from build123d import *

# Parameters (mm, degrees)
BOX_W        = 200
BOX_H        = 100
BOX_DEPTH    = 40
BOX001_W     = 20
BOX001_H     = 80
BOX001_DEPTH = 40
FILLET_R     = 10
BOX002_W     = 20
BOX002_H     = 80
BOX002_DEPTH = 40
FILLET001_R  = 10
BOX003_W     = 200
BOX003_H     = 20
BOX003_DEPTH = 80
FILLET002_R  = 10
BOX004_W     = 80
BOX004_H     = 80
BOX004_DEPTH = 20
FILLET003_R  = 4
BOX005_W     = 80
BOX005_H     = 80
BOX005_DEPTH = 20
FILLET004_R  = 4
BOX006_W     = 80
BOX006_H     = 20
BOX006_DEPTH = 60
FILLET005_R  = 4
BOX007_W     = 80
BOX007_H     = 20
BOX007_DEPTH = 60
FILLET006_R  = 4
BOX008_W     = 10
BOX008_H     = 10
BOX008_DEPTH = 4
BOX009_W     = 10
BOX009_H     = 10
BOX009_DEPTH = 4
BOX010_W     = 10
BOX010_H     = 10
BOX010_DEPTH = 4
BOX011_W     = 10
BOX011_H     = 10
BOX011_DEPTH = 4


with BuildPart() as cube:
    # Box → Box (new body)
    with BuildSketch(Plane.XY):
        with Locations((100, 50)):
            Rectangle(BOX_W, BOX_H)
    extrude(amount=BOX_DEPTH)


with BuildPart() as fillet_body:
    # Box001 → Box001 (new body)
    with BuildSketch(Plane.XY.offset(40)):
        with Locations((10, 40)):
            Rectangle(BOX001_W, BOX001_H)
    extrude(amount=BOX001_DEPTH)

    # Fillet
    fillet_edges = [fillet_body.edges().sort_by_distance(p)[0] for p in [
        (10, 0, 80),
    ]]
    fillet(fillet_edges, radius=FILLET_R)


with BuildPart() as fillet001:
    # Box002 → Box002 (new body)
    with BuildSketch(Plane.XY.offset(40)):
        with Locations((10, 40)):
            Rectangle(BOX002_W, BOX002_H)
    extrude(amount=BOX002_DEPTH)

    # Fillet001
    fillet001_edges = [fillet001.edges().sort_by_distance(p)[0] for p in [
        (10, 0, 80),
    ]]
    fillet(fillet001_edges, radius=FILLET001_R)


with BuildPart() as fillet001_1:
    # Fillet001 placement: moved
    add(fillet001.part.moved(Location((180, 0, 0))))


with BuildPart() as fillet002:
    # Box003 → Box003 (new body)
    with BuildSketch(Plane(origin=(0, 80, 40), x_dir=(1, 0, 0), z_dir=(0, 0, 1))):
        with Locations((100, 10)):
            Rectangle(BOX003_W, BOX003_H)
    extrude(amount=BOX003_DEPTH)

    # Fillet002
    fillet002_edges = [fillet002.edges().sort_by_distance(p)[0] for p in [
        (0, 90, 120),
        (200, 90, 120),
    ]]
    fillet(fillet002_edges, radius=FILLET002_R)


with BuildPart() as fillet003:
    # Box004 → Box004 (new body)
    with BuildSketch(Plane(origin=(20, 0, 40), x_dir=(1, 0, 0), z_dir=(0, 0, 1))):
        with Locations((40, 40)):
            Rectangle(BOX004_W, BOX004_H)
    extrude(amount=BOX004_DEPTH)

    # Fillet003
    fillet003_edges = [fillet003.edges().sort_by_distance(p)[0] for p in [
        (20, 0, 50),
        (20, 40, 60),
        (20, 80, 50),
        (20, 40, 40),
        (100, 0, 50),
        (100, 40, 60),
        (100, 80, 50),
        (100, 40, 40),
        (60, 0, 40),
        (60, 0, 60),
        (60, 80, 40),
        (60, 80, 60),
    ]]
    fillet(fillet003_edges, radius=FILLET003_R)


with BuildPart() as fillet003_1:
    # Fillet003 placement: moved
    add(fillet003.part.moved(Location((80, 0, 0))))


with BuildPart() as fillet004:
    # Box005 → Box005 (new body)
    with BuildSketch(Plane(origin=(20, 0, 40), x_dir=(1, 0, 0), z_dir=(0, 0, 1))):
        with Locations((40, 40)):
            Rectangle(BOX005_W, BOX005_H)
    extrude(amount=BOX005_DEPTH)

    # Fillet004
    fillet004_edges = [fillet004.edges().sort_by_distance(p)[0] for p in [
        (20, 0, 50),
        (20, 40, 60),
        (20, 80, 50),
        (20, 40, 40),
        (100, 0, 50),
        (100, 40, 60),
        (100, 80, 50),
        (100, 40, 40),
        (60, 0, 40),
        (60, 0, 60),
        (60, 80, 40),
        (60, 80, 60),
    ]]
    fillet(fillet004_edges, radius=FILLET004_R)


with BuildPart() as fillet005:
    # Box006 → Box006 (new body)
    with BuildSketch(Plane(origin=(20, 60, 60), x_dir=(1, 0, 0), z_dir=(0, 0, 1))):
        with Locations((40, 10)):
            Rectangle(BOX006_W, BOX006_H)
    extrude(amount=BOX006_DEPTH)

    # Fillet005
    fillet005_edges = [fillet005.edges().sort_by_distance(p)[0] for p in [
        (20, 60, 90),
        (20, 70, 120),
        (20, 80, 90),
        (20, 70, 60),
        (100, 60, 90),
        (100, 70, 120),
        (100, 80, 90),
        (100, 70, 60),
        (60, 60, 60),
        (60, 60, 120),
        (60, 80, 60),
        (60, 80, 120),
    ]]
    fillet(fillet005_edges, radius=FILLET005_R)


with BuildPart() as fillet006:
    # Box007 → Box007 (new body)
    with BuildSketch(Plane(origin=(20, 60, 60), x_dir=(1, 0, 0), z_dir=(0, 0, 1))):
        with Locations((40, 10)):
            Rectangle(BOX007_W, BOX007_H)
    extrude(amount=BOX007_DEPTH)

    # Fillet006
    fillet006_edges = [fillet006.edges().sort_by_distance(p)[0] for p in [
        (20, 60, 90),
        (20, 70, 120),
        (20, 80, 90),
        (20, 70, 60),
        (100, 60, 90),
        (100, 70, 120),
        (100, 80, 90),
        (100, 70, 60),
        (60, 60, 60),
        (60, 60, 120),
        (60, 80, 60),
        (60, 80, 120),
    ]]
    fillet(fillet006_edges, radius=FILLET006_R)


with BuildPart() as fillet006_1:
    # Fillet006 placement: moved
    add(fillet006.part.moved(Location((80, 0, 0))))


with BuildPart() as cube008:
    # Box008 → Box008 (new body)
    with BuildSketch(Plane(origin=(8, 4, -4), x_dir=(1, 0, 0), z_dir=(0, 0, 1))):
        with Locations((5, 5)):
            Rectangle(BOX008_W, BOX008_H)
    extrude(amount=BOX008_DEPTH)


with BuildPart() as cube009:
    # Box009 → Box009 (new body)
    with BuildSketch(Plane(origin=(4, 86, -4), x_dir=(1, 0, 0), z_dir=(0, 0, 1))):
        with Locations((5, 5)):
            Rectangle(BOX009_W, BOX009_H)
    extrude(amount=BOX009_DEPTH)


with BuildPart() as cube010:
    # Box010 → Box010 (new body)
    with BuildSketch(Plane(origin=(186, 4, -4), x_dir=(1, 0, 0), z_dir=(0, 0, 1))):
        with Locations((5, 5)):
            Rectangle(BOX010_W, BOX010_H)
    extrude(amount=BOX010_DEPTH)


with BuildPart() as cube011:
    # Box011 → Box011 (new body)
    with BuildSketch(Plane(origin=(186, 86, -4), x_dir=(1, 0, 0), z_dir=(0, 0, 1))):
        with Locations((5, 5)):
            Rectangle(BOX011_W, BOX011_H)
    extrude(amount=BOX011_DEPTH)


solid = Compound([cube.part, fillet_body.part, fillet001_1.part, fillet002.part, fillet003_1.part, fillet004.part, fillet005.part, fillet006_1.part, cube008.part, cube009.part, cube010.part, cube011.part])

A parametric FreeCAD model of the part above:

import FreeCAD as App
import Part
import Sketcher


def edges_at(feature, points):
    """Names of the edges that pass closest to the given points."""
    edges = feature.Shape.Edges
    near = lambda p: min(range(len(edges)), key=lambda i: edges[i].distToShape(Part.Vertex(*p))[0])
    return sorted({f"Edge{near(p) + 1}" for p in points})


def add_polygon(sketch, points):
    """Adds a closed chain of lines whose ends are joined by coincident constraints."""
    first, n = sketch.GeometryCount, len(points)
    for a, b in zip(points, points[1:] + points[:1]):
        sketch.addGeometry(Part.LineSegment(App.Vector(*a, 0), App.Vector(*b, 0)), False)
    for i in range(n):
        sketch.addConstraint(Sketcher.Constraint("Coincident", first + i, 2, first + (i + 1) % n, 1))

doc = App.newDocument("Part")
body = doc.addObject("PartDesign::Body", "Body")

# Sketch on XY plane
sketch1 = body.newObject("Sketcher::SketchObject", "Sketch")
sketch1.AttachmentSupport = (doc.getObject("XY_Plane"), [""])
sketch1.MapMode = "FlatFace"
add_polygon(sketch1, [(0, 100), (0, 0), (200, 0), (200, 100)])  # lines 0-3
sketch1.addConstraint([
    Sketcher.Constraint("Vertical", 0),
    Sketcher.Constraint("Horizontal", 1),
    Sketcher.Constraint("Vertical", 2),
    Sketcher.Constraint("Horizontal", 3),
    Sketcher.Constraint("Coincident", 0, 2, -1, 1),
    Sketcher.Constraint("DistanceX", 1, 1, 1, 2, 200.0),
    Sketcher.Constraint("DistanceY", 0, 2, 0, 1, 100.0),
])
pad1 = body.newObject("PartDesign::Pad", "Pad")
pad1.Profile = sketch1
pad1.Length = 40
body2 = doc.addObject("PartDesign::Body", "Body001")

# Sketch on XY plane
sketch2 = body2.newObject("Sketcher::SketchObject", "Sketch001")
sketch2.AttachmentSupport = (doc.getObject("XY_Plane001"), [""])
sketch2.MapMode = "FlatFace"
sketch2.AttachmentOffset = App.Placement(App.Vector(0, 0, 40), App.Rotation())
add_polygon(sketch2, [(0, 80), (0, 0), (20, 0), (20, 80)])  # lines 0-3
sketch2.addConstraint([
    Sketcher.Constraint("Vertical", 0),
    Sketcher.Constraint("Horizontal", 1),
    Sketcher.Constraint("Vertical", 2),
    Sketcher.Constraint("Horizontal", 3),
    Sketcher.Constraint("Coincident", 0, 2, -1, 1),
    Sketcher.Constraint("DistanceX", 1, 1, 1, 2, 20.0),
    Sketcher.Constraint("DistanceY", 0, 2, 0, 1, 80.0),
])
pad2 = body2.newObject("PartDesign::Pad", "Pad001")
pad2.Profile = sketch2
pad2.Length = 40
doc.recompute()

fillet = body2.newObject("PartDesign::Fillet", "Fillet")
fillet.Base = (pad2, edges_at(pad2, [(10, 0, 80)]))
fillet.Radius = 10
body3 = doc.addObject("PartDesign::Body", "Body002")

# Sketch on XY plane
sketch3 = body3.newObject("Sketcher::SketchObject", "Sketch002")
sketch3.AttachmentSupport = (doc.getObject("XY_Plane002"), [""])
sketch3.MapMode = "FlatFace"
sketch3.AttachmentOffset = App.Placement(App.Vector(0, 0, 40), App.Rotation())
add_polygon(sketch3, [(0, 80), (0, 0), (20, 0), (20, 80)])  # lines 0-3
sketch3.addConstraint([
    Sketcher.Constraint("Vertical", 0),
    Sketcher.Constraint("Horizontal", 1),
    Sketcher.Constraint("Vertical", 2),
    Sketcher.Constraint("Horizontal", 3),
    Sketcher.Constraint("Coincident", 0, 2, -1, 1),
    Sketcher.Constraint("DistanceX", 1, 1, 1, 2, 20.0),
    Sketcher.Constraint("DistanceY", 0, 2, 0, 1, 80.0),
])
pad3 = body3.newObject("PartDesign::Pad", "Pad002")
pad3.Profile = sketch3
pad3.Length = 40
doc.recompute()

fillet2 = body3.newObject("PartDesign::Fillet", "Fillet001")
fillet2.Base = (pad3, edges_at(pad3, [(10, 0, 80)]))
fillet2.Radius = 10
body4 = doc.addObject("PartDesign::Body", "Body003")
doc.recompute()

body3.Placement = App.Placement(App.Vector(180, 0, 0), App.Rotation(App.Vector(0, 0, 1), 0))
boolean = body4.newObject("PartDesign::Boolean", "Boolean")
boolean.Type = "Fuse"
boolean.addObjects([body3])
body5 = doc.addObject("PartDesign::Body", "Body004")

# Sketch on XY plane
sketch4 = body5.newObject("Sketcher::SketchObject", "Sketch003")
sketch4.AttachmentSupport = (doc.getObject("XY_Plane004"), [""])
sketch4.MapMode = "FlatFace"
sketch4.AttachmentOffset = App.Placement(App.Vector(0, 0, 40), App.Rotation())
add_polygon(sketch4, [(0, 100), (0, 80), (200, 80), (200, 100)])  # lines 0-3
sketch4.addConstraint([
    Sketcher.Constraint("Vertical", 0),
    Sketcher.Constraint("Horizontal", 1),
    Sketcher.Constraint("Vertical", 2),
    Sketcher.Constraint("Horizontal", 3),
    Sketcher.Constraint("PointOnObject", 0, 2, -2),
    Sketcher.Constraint("DistanceX", 1, 1, 1, 2, 200.0),
    Sketcher.Constraint("DistanceY", 0, 2, 0, 1, 20.0),
    Sketcher.Constraint("DistanceY", -1, 1, 0, 2, 80.0),
])
pad4 = body5.newObject("PartDesign::Pad", "Pad003")
pad4.Profile = sketch4
pad4.Length = 80
doc.recompute()

fillet3 = body5.newObject("PartDesign::Fillet", "Fillet002")
fillet3.Base = (pad4, edges_at(pad4, [(0, 90, 120), (200, 90, 120)]))
fillet3.Radius = 10
body6 = doc.addObject("PartDesign::Body", "Body005")

# Sketch on XY plane
sketch5 = body6.newObject("Sketcher::SketchObject", "Sketch004")
sketch5.AttachmentSupport = (doc.getObject("XY_Plane005"), [""])
sketch5.MapMode = "FlatFace"
sketch5.AttachmentOffset = App.Placement(App.Vector(0, 0, 40), App.Rotation())
add_polygon(sketch5, [(20, 80), (20, 0), (100, 0), (100, 80)])  # lines 0-3
sketch5.addConstraint([
    Sketcher.Constraint("Vertical", 0),
    Sketcher.Constraint("Horizontal", 1),
    Sketcher.Constraint("Vertical", 2),
    Sketcher.Constraint("Horizontal", 3),
    Sketcher.Constraint("PointOnObject", 0, 2, -1),
    Sketcher.Constraint("Equal", 3, 0),
    Sketcher.Constraint("DistanceX", 1, 1, 1, 2, 80.0),
    Sketcher.Constraint("DistanceX", -1, 1, 0, 2, 20.0),
])
pad5 = body6.newObject("PartDesign::Pad", "Pad004")
pad5.Profile = sketch5
pad5.Length = 20
doc.recompute()

fillet4 = body6.newObject("PartDesign::Fillet", "Fillet003")
fillet4.Base = (pad5, ["Edge1"])
fillet4.UseAllEdges = True
fillet4.Radius = 4
body7 = doc.addObject("PartDesign::Body", "Body006")
doc.recompute()

body6.Placement = App.Placement(App.Vector(80, 0, 0), App.Rotation(App.Vector(0, 0, 1), 0))
boolean2 = body7.newObject("PartDesign::Boolean", "Boolean001")
boolean2.Type = "Fuse"
boolean2.addObjects([body6])
body8 = doc.addObject("PartDesign::Body", "Body007")

# Sketch on XY plane
sketch6 = body8.newObject("Sketcher::SketchObject", "Sketch005")
sketch6.AttachmentSupport = (doc.getObject("XY_Plane007"), [""])
sketch6.MapMode = "FlatFace"
sketch6.AttachmentOffset = App.Placement(App.Vector(0, 0, 40), App.Rotation())
add_polygon(sketch6, [(20, 80), (20, 0), (100, 0), (100, 80)])  # lines 0-3
sketch6.addConstraint([
    Sketcher.Constraint("Vertical", 0),
    Sketcher.Constraint("Horizontal", 1),
    Sketcher.Constraint("Vertical", 2),
    Sketcher.Constraint("Horizontal", 3),
    Sketcher.Constraint("PointOnObject", 0, 2, -1),
    Sketcher.Constraint("Equal", 3, 0),
    Sketcher.Constraint("DistanceX", 1, 1, 1, 2, 80.0),
    Sketcher.Constraint("DistanceX", -1, 1, 0, 2, 20.0),
])
pad6 = body8.newObject("PartDesign::Pad", "Pad005")
pad6.Profile = sketch6
pad6.Length = 20
doc.recompute()

fillet5 = body8.newObject("PartDesign::Fillet", "Fillet004")
fillet5.Base = (pad6, ["Edge1"])
fillet5.UseAllEdges = True
fillet5.Radius = 4
body9 = doc.addObject("PartDesign::Body", "Body008")

# Sketch on XY plane
sketch7 = body9.newObject("Sketcher::SketchObject", "Sketch006")
sketch7.AttachmentSupport = (doc.getObject("XY_Plane008"), [""])
sketch7.MapMode = "FlatFace"
sketch7.AttachmentOffset = App.Placement(App.Vector(0, 0, 60), App.Rotation())
add_polygon(sketch7, [(20, 80), (20, 60), (100, 60), (100, 80)])  # lines 0-3
sketch7.addConstraint([
    Sketcher.Constraint("Vertical", 0),
    Sketcher.Constraint("Horizontal", 1),
    Sketcher.Constraint("Vertical", 2),
    Sketcher.Constraint("Horizontal", 3),
    Sketcher.Constraint("DistanceX", 1, 1, 1, 2, 80.0),
    Sketcher.Constraint("DistanceY", 0, 2, 0, 1, 20.0),
    Sketcher.Constraint("DistanceX", -1, 1, 0, 2, 20.0),
    Sketcher.Constraint("DistanceY", -1, 1, 0, 2, 60.0),
])
pad7 = body9.newObject("PartDesign::Pad", "Pad006")
pad7.Profile = sketch7
pad7.Length = 60
doc.recompute()

fillet6 = body9.newObject("PartDesign::Fillet", "Fillet005")
fillet6.Base = (pad7, ["Edge1"])
fillet6.UseAllEdges = True
fillet6.Radius = 4
body10 = doc.addObject("PartDesign::Body", "Body009")

# Sketch on XY plane
sketch8 = body10.newObject("Sketcher::SketchObject", "Sketch007")
sketch8.AttachmentSupport = (doc.getObject("XY_Plane009"), [""])
sketch8.MapMode = "FlatFace"
sketch8.AttachmentOffset = App.Placement(App.Vector(0, 0, 60), App.Rotation())
add_polygon(sketch8, [(20, 80), (20, 60), (100, 60), (100, 80)])  # lines 0-3
sketch8.addConstraint([
    Sketcher.Constraint("Vertical", 0),
    Sketcher.Constraint("Horizontal", 1),
    Sketcher.Constraint("Vertical", 2),
    Sketcher.Constraint("Horizontal", 3),
    Sketcher.Constraint("DistanceX", 1, 1, 1, 2, 80.0),
    Sketcher.Constraint("DistanceY", 0, 2, 0, 1, 20.0),
    Sketcher.Constraint("DistanceX", -1, 1, 0, 2, 20.0),
    Sketcher.Constraint("DistanceY", -1, 1, 0, 2, 60.0),
])
pad8 = body10.newObject("PartDesign::Pad", "Pad007")
pad8.Profile = sketch8
pad8.Length = 60
doc.recompute()

fillet7 = body10.newObject("PartDesign::Fillet", "Fillet006")
fillet7.Base = (pad8, ["Edge1"])
fillet7.UseAllEdges = True
fillet7.Radius = 4
body11 = doc.addObject("PartDesign::Body", "Body010")
doc.recompute()

body10.Placement = App.Placement(App.Vector(80, 0, 0), App.Rotation(App.Vector(0, 0, 1), 0))
boolean3 = body11.newObject("PartDesign::Boolean", "Boolean002")
boolean3.Type = "Fuse"
boolean3.addObjects([body10])
body12 = doc.addObject("PartDesign::Body", "Body011")

# Sketch on XY plane
sketch9 = body12.newObject("Sketcher::SketchObject", "Sketch008")
sketch9.AttachmentSupport = (doc.getObject("XY_Plane011"), [""])
sketch9.MapMode = "FlatFace"
sketch9.AttachmentOffset = App.Placement(App.Vector(0, 0, -4), App.Rotation())
add_polygon(sketch9, [(8, 14), (8, 4), (18, 4), (18, 14)])  # lines 0-3
sketch9.addConstraint([
    Sketcher.Constraint("Vertical", 0),
    Sketcher.Constraint("Horizontal", 1),
    Sketcher.Constraint("Vertical", 2),
    Sketcher.Constraint("Horizontal", 3),
    Sketcher.Constraint("Equal", 3, 0),
    Sketcher.Constraint("DistanceX", 1, 1, 1, 2, 10.0),
    Sketcher.Constraint("DistanceX", -1, 1, 0, 2, 8.0),
    Sketcher.Constraint("DistanceY", -1, 1, 0, 2, 4.0),
])
pad9 = body12.newObject("PartDesign::Pad", "Pad008")
pad9.Profile = sketch9
pad9.Length = 4
body13 = doc.addObject("PartDesign::Body", "Body012")

# Sketch on XY plane
sketch10 = body13.newObject("Sketcher::SketchObject", "Sketch009")
sketch10.AttachmentSupport = (doc.getObject("XY_Plane012"), [""])
sketch10.MapMode = "FlatFace"
sketch10.AttachmentOffset = App.Placement(App.Vector(0, 0, -4), App.Rotation())
add_polygon(sketch10, [(4, 96), (4, 86), (14, 86), (14, 96)])  # lines 0-3
sketch10.addConstraint([
    Sketcher.Constraint("Vertical", 0),
    Sketcher.Constraint("Horizontal", 1),
    Sketcher.Constraint("Vertical", 2),
    Sketcher.Constraint("Horizontal", 3),
    Sketcher.Constraint("Equal", 3, 0),
    Sketcher.Constraint("DistanceX", 1, 1, 1, 2, 10.0),
    Sketcher.Constraint("DistanceX", -1, 1, 0, 2, 4.0),
    Sketcher.Constraint("DistanceY", -1, 1, 0, 2, 86.0),
])
pad10 = body13.newObject("PartDesign::Pad", "Pad009")
pad10.Profile = sketch10
pad10.Length = 4
body14 = doc.addObject("PartDesign::Body", "Body013")

# Sketch on XY plane
sketch11 = body14.newObject("Sketcher::SketchObject", "Sketch010")
sketch11.AttachmentSupport = (doc.getObject("XY_Plane013"), [""])
sketch11.MapMode = "FlatFace"
sketch11.AttachmentOffset = App.Placement(App.Vector(0, 0, -4), App.Rotation())
add_polygon(sketch11, [(186, 14), (186, 4), (196, 4), (196, 14)])  # lines 0-3
sketch11.addConstraint([
    Sketcher.Constraint("Vertical", 0),
    Sketcher.Constraint("Horizontal", 1),
    Sketcher.Constraint("Vertical", 2),
    Sketcher.Constraint("Horizontal", 3),
    Sketcher.Constraint("Equal", 3, 0),
    Sketcher.Constraint("DistanceX", 1, 1, 1, 2, 10.0),
    Sketcher.Constraint("DistanceX", -1, 1, 0, 2, 186.0),
    Sketcher.Constraint("DistanceY", -1, 1, 0, 2, 4.0),
])
pad11 = body14.newObject("PartDesign::Pad", "Pad010")
pad11.Profile = sketch11
pad11.Length = 4
body15 = doc.addObject("PartDesign::Body", "Body014")

# Sketch on XY plane
sketch12 = body15.newObject("Sketcher::SketchObject", "Sketch011")
sketch12.AttachmentSupport = (doc.getObject("XY_Plane014"), [""])
sketch12.MapMode = "FlatFace"
sketch12.AttachmentOffset = App.Placement(App.Vector(0, 0, -4), App.Rotation())
add_polygon(sketch12, [(186, 96), (186, 86), (196, 86), (196, 96)])  # lines 0-3
sketch12.addConstraint([
    Sketcher.Constraint("Vertical", 0),
    Sketcher.Constraint("Horizontal", 1),
    Sketcher.Constraint("Vertical", 2),
    Sketcher.Constraint("Horizontal", 3),
    Sketcher.Constraint("Equal", 3, 0),
    Sketcher.Constraint("DistanceX", 1, 1, 1, 2, 10.0),
    Sketcher.Constraint("DistanceX", -1, 1, 0, 2, 186.0),
    Sketcher.Constraint("DistanceY", -1, 1, 0, 2, 86.0),
])
pad12 = body15.newObject("PartDesign::Pad", "Pad011")
pad12.Profile = sketch12
pad12.Length = 4

doc.recompute()
